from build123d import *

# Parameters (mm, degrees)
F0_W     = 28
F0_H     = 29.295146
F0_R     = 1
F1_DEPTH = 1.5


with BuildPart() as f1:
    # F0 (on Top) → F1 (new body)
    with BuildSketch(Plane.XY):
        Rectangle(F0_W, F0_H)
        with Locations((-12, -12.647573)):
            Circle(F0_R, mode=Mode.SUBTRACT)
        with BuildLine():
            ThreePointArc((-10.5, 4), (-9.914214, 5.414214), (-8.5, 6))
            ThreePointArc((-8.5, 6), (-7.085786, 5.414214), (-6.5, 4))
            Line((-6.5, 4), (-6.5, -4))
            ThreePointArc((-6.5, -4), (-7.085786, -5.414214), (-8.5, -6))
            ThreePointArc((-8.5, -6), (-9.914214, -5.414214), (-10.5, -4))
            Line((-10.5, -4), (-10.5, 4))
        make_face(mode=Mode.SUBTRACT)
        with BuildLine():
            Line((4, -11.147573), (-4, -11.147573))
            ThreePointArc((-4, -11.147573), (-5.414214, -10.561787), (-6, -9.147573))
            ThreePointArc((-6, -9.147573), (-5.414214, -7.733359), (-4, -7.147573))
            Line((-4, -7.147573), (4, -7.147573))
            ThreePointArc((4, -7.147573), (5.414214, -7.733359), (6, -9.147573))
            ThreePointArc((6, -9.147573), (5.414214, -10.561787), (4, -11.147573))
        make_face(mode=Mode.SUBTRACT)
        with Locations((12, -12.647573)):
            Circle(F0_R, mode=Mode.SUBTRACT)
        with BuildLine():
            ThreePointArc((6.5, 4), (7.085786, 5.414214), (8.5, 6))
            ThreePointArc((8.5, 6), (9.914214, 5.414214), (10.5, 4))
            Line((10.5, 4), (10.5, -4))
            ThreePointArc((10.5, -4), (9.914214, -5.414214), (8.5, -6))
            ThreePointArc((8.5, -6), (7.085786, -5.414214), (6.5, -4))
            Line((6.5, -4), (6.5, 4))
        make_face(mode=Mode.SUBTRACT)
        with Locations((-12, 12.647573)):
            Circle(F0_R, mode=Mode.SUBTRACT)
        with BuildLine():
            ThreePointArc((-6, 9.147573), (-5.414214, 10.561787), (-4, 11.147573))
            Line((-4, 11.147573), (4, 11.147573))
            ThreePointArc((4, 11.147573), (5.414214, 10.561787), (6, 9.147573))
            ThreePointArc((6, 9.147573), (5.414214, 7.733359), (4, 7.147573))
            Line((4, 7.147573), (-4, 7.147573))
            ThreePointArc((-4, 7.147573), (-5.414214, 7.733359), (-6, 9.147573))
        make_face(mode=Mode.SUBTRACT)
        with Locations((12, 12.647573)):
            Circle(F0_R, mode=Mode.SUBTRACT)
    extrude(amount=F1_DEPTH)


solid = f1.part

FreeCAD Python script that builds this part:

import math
import FreeCAD as App
import Part
import Sketcher
Q = App.Units.Quantity

doc = App.newDocument("Part")
body = doc.addObject("PartDesign::Body", "Body")

# Sketch on XY plane
sketch1 = doc.addObject("Sketcher::SketchObject", "Sketch")
body.addObject(sketch1)
sketch1.AttachmentSupport = (doc.XY_Plane, [""])
sketch1.MapMode = "FlatFace"
sketch1.addGeometry([
    Part.LineSegment(App.Vector(-14, 14.6, 0), App.Vector(-14, -14.6, 0)),  # 0
    Part.LineSegment(App.Vector(-14, -14.6, 0), App.Vector(14, -14.6, 0)),  # 1
    Part.LineSegment(App.Vector(14, -14.6, 0), App.Vector(14, 14.6, 0)),  # 2
    Part.LineSegment(App.Vector(14, 14.6, 0), App.Vector(-14, 14.6, 0)),  # 3
    Part.Circle(App.Vector(-12, -12.6, 0), App.Vector(0, 0, 1), 1),  # 4
    Part.ArcOfCircle(Part.Circle(App.Vector(4, -9.1, 0), App.Vector(0, 0, 1), 2), math.radians(-90), math.radians(0)),  # 5
    Part.LineSegment(App.Vector(4, -11.1, 0), App.Vector(-4, -11.1, 0)),  # 6
    Part.ArcOfCircle(Part.Circle(App.Vector(-4, -9.1, 0), App.Vector(0, 0, 1), 2), math.radians(180), math.radians(270)),  # 7
    Part.ArcOfCircle(Part.Circle(App.Vector(-4, -9.1, 0), App.Vector(0, 0, 1), 2), math.radians(90), math.radians(180)),  # 8
    Part.LineSegment(App.Vector(-4, -7.1, 0), App.Vector(4, -7.1, 0)),  # 9
    Part.ArcOfCircle(Part.Circle(App.Vector(4, -9.1, 0), App.Vector(0, 0, 1), 2), math.radians(0), math.radians(90)),  # 10
    Part.Circle(App.Vector(12, -12.6, 0), App.Vector(0, 0, 1), 1),  # 11
    Part.LineSegment(App.Vector(-10.5, -4, 0), App.Vector(-10.5, 4, 0)),  # 12
    Part.ArcOfCircle(Part.Circle(App.Vector(-8.5, 4, 0), App.Vector(0, 0, 1), 2), math.radians(90), math.radians(180)),  # 13
    Part.ArcOfCircle(Part.Circle(App.Vector(-8.5, 4, 0), App.Vector(0, 0, 1), 2), math.radians(0), math.radians(90)),  # 14
    Part.LineSegment(App.Vector(-6.5, 4, 0), App.Vector(-6.5, -4, 0)),  # 15
    Part.ArcOfCircle(Part.Circle(App.Vector(-8.5, -4, 0), App.Vector(0, 0, 1), 2), math.radians(-90), math.radians(0)),  # 16
    Part.ArcOfCircle(Part.Circle(App.Vector(-8.5, -4, 0), App.Vector(0, 0, 1), 2), math.radians(180), math.radians(270)),  # 17
    Part.Circle(App.Vector(-12, 12.6, 0), App.Vector(0, 0, 1), 1),  # 18
    Part.LineSegment(App.Vector(6.5, -4, 0), App.Vector(6.5, 4, 0)),  # 19
    Part.ArcOfCircle(Part.Circle(App.Vector(8.5, 4, 0), App.Vector(0, 0, 1), 2), math.radians(90), math.radians(180)),  # 20
    Part.ArcOfCircle(Part.Circle(App.Vector(8.5, 4, 0), App.Vector(0, 0, 1), 2), math.radians(0), math.radians(90)),  # 21
    Part.LineSegment(App.Vector(10.5, 4, 0), App.Vector(10.5, -4, 0)),  # 22
    Part.ArcOfCircle(Part.Circle(App.Vector(8.5, -4, 0), App.Vector(0, 0, 1), 2), math.radians(-90), math.radians(0)),  # 23
    Part.ArcOfCircle(Part.Circle(App.Vector(8.5, -4, 0), App.Vector(0, 0, 1), 2), math.radians(180), math.radians(270)),  # 24
    Part.ArcOfCircle(Part.Circle(App.Vector(-4, 9.1, 0), App.Vector(0, 0, 1), 2), math.radians(180), math.radians(270)),  # 25
    Part.ArcOfCircle(Part.Circle(App.Vector(-4, 9.1, 0), App.Vector(0, 0, 1), 2), math.radians(90), math.radians(180)),  # 26
    Part.LineSegment(App.Vector(-4, 11.1, 0), App.Vector(4, 11.1, 0)),  # 27
    Part.ArcOfCircle(Part.Circle(App.Vector(4, 9.1, 0), App.Vector(0, 0, 1), 2), math.radians(0), math.radians(90)),  # 28
    Part.ArcOfCircle(Part.Circle(App.Vector(4, 9.1, 0), App.Vector(0, 0, 1), 2), math.radians(-90), math.radians(0)),  # 29
    Part.LineSegment(App.Vector(4, 7.1, 0), App.Vector(-4, 7.1, 0)),  # 30
    Part.Circle(App.Vector(12, 12.6, 0), App.Vector(0, 0, 1), 1),  # 31
], False)
sketch1.addConstraint([
    Sketcher.Constraint("Coincident", 0, 2, 1, 1),
    Sketcher.Constraint("Coincident", 1, 2, 2, 1),
    Sketcher.Constraint("Coincident", 2, 2, 3, 1),
    Sketcher.Constraint("Coincident", 3, 2, 0, 1),
    Sketcher.Constraint("Tangent", 5, 1, 6, 1),
    Sketcher.Constraint("Tangent", 6, 2, 7, 2),
    Sketcher.Constraint("Tangent", 7, 1, 8, 2),
    Sketcher.Constraint("Tangent", 8, 1, 9, 1),
    Sketcher.Constraint("Tangent", 9, 2, 10, 2),
    Sketcher.Constraint("Tangent", 10, 1, 5, 2),
    Sketcher.Constraint("Tangent", 12, 2, 13, 2),
    Sketcher.Constraint("Tangent", 13, 1, 14, 2),
    Sketcher.Constraint("Tangent", 14, 1, 15, 1),
    Sketcher.Constraint("Tangent", 15, 2, 16, 2),
    Sketcher.Constraint("Tangent", 16, 1, 17, 2),
    Sketcher.Constraint("Tangent", 17, 1, 12, 1),
    Sketcher.Constraint("Tangent", 19, 2, 20, 2),
    Sketcher.Constraint("Tangent", 20, 1, 21, 2),
    Sketcher.Constraint("Tangent", 21, 1, 22, 1),
    Sketcher.Constraint("Tangent", 22, 2, 23, 2),
    Sketcher.Constraint("Tangent", 23, 1, 24, 2),
    Sketcher.Constraint("Tangent", 24, 1, 19, 1),
    Sketcher.Constraint("Tangent", 25, 1, 26, 2),
    Sketcher.Constraint("Tangent", 26, 1, 27, 1),
    Sketcher.Constraint("Tangent", 27, 2, 28, 2),
    Sketcher.Constraint("Tangent", 28, 1, 29, 2),
    Sketcher.Constraint("Tangent", 29, 1, 30, 1),
    Sketcher.Constraint("Tangent", 30, 2, 25, 2),
    Sketcher.Constraint("Vertical", 0),
    Sketcher.Constraint("Horizontal", 1),
    Sketcher.Constraint("Vertical", 2),
    Sketcher.Constraint("Horizontal", 3),
    Sketcher.Constraint("Horizontal", 6),
    Sketcher.Constraint("Horizontal", 9),
    Sketcher.Constraint("Vertical", 12),
    Sketcher.Constraint("Vertical", 15),
    Sketcher.Constraint("Vertical", 19),
    Sketcher.Constraint("Vertical", 22),
    Sketcher.Constraint("Horizontal", 27),
    Sketcher.Constraint("Horizontal", 30),
    Sketcher.Constraint("Equal", 5, 7),
    Sketcher.Constraint("Equal", 7, 8),
    Sketcher.Constraint("Equal", 4, 11),
    Sketcher.Constraint("Equal", 10, 13),
    Sketcher.Constraint("Equal", 13, 14),
    Sketcher.Constraint("Equal", 14, 16),
    Sketcher.Constraint("Equal", 11, 18),
    Sketcher.Constraint("Equal", 17, 20),
    Sketcher.Constraint("Equal", 20, 21),
    Sketcher.Constraint("Equal", 21, 23),
    Sketcher.Constraint("Equal", 24, 25),
    Sketcher.Constraint("Equal", 25, 26),
    Sketcher.Constraint("Equal", 26, 28),
    Sketcher.Constraint("Equal", 18, 31),
    Sketcher.Constraint("Symmetric", 11, 3, 18, 3, -1, 1),
    Sketcher.Constraint("Symmetric", 16, 3, 20, 3, -1, 1),
    Sketcher.Constraint("Symmetric", 5, 3, 25, 3, -1, 1),
    Sketcher.Constraint("Symmetric", 4, 3, 31, 3, -1, 1),
    Sketcher.Constraint("Symmetric", 0, 2, 2, 2, -1, 1),
    Sketcher.Constraint("Symmetric", 13, 1, 23, 1, -1, 1),
    Sketcher.Constraint("Symmetric", 7, 1, 28, 1, -1, 1),
    Sketcher.Constraint("Symmetric", 4, 3, 11, 3, -2),
    Sketcher.Constraint("Symmetric", 7, 1, 10, 1, -2),
    Sketcher.Constraint("Symmetric", 13, 1, 20, 1, -2),
    Sketcher.Constraint("Horizontal", 10, 3, 7, 1),
    Sketcher.Constraint("Horizontal", 29, 3, 25, 1),
    Sketcher.Constraint("Vertical", 17, 3, 13, 1),
    Sketcher.Constraint("Vertical", 13, 1, 16, 1),
    Sketcher.Constraint("Equal", 30, 12),
    Sketcher.Constraint("Diameter", 4, Q("2 mm")),
    Sketcher.Constraint("Radius", 5, Q("1.999999 mm")),
    Sketcher.Constraint("DistanceX", 1, 1, 1, 2, Q("28 mm")),
    Sketcher.Constraint("DistanceX", 6, 2, 6, 1, Q("8 mm")),
    Sketcher.Constraint("DistanceX", 4, 3, -1, 1, Q("12 mm")),
    Sketcher.Constraint("DistanceX", 13, 3, 20, 3, Q("17 mm")),
    Sketcher.Constraint("DistanceY", 0, 2, 4, 3, Q("2 mm")),
    Sketcher.Constraint("DistanceY", 4, 3, 5, 3, Q("3.499999 mm")),
    Sketcher.Constraint("DistanceY", 0, 2, 0, 1, Q("29.295146 mm")),
])
pad1 = doc.addObject("PartDesign::Pad", "Pad")
body.addObject(pad1)
pad1.Profile = sketch1
pad1.Length = 1.5

doc.recompute()
